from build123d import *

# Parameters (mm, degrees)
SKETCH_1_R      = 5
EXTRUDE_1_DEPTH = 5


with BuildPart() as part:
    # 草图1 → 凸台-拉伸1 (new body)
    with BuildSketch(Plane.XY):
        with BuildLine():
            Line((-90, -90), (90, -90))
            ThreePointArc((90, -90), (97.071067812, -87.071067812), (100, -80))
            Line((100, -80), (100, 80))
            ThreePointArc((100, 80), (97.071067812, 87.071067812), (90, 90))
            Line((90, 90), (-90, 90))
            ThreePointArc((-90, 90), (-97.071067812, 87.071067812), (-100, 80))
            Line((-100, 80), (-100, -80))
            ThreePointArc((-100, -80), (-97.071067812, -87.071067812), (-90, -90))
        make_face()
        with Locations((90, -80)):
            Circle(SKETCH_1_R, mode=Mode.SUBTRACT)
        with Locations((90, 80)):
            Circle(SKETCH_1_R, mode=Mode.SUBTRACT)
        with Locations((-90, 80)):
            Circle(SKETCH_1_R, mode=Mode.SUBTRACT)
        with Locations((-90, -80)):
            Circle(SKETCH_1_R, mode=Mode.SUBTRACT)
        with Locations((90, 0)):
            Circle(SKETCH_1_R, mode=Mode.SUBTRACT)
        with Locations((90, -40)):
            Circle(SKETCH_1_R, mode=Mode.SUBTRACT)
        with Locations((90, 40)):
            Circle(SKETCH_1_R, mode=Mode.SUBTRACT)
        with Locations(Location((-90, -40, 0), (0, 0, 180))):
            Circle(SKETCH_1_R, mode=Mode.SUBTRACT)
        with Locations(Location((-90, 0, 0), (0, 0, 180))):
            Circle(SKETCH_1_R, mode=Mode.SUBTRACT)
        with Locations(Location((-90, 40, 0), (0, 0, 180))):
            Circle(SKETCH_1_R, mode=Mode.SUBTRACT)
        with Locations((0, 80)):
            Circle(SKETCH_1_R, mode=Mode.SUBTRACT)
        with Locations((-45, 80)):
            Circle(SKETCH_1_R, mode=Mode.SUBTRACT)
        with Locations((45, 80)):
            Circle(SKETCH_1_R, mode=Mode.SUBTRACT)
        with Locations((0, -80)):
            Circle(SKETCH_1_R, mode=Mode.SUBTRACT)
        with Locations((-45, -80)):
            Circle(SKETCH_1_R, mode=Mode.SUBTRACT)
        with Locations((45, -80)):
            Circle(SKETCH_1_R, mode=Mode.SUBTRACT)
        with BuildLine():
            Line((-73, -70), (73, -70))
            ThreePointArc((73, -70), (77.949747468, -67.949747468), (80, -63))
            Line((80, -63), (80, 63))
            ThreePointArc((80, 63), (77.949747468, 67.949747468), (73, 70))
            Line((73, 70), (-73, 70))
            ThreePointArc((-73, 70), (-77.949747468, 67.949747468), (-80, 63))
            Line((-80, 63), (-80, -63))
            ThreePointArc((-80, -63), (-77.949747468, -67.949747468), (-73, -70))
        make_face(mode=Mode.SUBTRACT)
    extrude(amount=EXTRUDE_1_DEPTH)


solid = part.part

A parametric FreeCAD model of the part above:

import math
import FreeCAD as App
import Part
import Sketcher

V = App.Vector
Q = App.Units.Quantity

doc = App.newDocument("Part")
body = doc.addObject("PartDesign::Body", "Body")

# Sketch on XY plane
sketch1 = body.newObject("Sketcher::SketchObject", "Sketch")
sketch1.AttachmentSupport = (doc.getObject("XY_Plane"), [""])
sketch1.MapMode = "FlatFace"
sketch1.addGeometry([
    Part.LineSegment(V(-90, -90, 0), V(90, -90, 0)),  # 0
    Part.ArcOfCircle(Part.Circle(V(90, -80, 0), V(0, 0, 1), 10), math.radians(-90), math.radians(0)),  # 1
    Part.LineSegment(V(100, -80, 0), V(100, 80, 0)),  # 2
    Part.ArcOfCircle(Part.Circle(V(90, 80, 0), V(0, 0, 1), 10), math.radians(0), math.radians(90)),  # 3
    Part.LineSegment(V(90, 90, 0), V(-90, 90, 0)),  # 4
    Part.ArcOfCircle(Part.Circle(V(-90, 80, 0), V(0, 0, 1), 10), math.radians(90), math.radians(180)),  # 5
    Part.LineSegment(V(-100, 80, 0), V(-100, -80, 0)),  # 6
    Part.ArcOfCircle(Part.Circle(V(-90, -80, 0), V(0, 0, 1), 10), math.radians(180), math.radians(270)),  # 7
    Part.Circle(V(-90, -80, 0), V(0, 0, 1), 5),  # 8
    Part.Circle(V(-45, -80, 0), V(0, 0, 1), 5),  # 9
    Part.Circle(V(-90, -40, 0), V(0, 0, 1), 5),  # 10
    Part.Circle(V(0, -80, 0), V(0, 0, 1), 5),  # 11
    Part.Circle(V(45, -80, 0), V(0, 0, 1), 5),  # 12
    Part.Circle(V(90, -80, 0), V(0, 0, 1), 5),  # 13
    Part.Circle(V(90, -40, 0), V(0, 0, 1), 5),  # 14
    Part.Circle(V(-90, 0, 0), V(0, 0, 1), 5),  # 15
    Part.Circle(V(-90, 40, 0), V(0, 0, 1), 5),  # 16
    Part.Circle(V(-90, 80, 0), V(0, 0, 1), 5),  # 17
    Part.Circle(V(-45, 80, 0), V(0, 0, 1), 5),  # 18
    Part.LineSegment(V(73, -70, 0), V(-73, -70, 0)),  # 19
    Part.ArcOfCircle(Part.Circle(V(-73, -63, 0), V(0, 0, 1), 7), math.radians(-180), math.radians(-90)),  # 20
    Part.LineSegment(V(-80, -63, 0), V(-80, 63, 0)),  # 21
    Part.ArcOfCircle(Part.Circle(V(-73, 63, 0), V(0, 0, 1), 7), math.radians(90), math.radians(180)),  # 22
    Part.LineSegment(V(-73, 70, 0), V(73, 70, 0)),  # 23
    Part.ArcOfCircle(Part.Circle(V(73, 63, 0), V(0, 0, 1), 7), math.radians(0), math.radians(90)),  # 24
    Part.LineSegment(V(80, 63, 0), V(80, -63, 0)),  # 25
    Part.ArcOfCircle(Part.Circle(V(73, -63, 0), V(0, 0, 1), 7), math.radians(-90), math.radians(0)),  # 26
    Part.Circle(V(90, 0, 0), V(0, 0, 1), 5),  # 27
    Part.Circle(V(90, 40, 0), V(0, 0, 1), 5),  # 28
    Part.Circle(V(0, 80, 0), V(0, 0, 1), 5),  # 29
    Part.Circle(V(45, 80, 0), V(0, 0, 1), 5),  # 30
    Part.Circle(V(90, 80, 0), V(0, 0, 1), 5),  # 31
], False)
sketch1.addConstraint([
    Sketcher.Constraint("Tangent", 0, 2, 1, 1),
    Sketcher.Constraint("Tangent", 1, 2, 2, 1),
    Sketcher.Constraint("Tangent", 2, 2, 3, 1),
    Sketcher.Constraint("Tangent", 3, 2, 4, 1),
    Sketcher.Constraint("Tangent", 4, 2, 5, 1),
    Sketcher.Constraint("Tangent", 5, 2, 6, 1),
    Sketcher.Constraint("Tangent", 6, 2, 7, 1),
    Sketcher.Constraint("Tangent", 7, 2, 0, 1),
    Sketcher.Constraint("Tangent", 19, 2, 20, 2),
    Sketcher.Constraint("Tangent", 20, 1, 21, 1),
    Sketcher.Constraint("Tangent", 21, 2, 22, 2),
    Sketcher.Constraint("Tangent", 22, 1, 23, 1),
    Sketcher.Constraint("Tangent", 23, 2, 24, 2),
    Sketcher.Constraint("Tangent", 24, 1, 25, 1),
    Sketcher.Constraint("Tangent", 25, 2, 26, 2),
    Sketcher.Constraint("Tangent", 26, 1, 19, 1),
    Sketcher.Constraint("Horizontal", 0),
    Sketcher.Constraint("Vertical", 2),
    Sketcher.Constraint("Horizontal", 4),
    Sketcher.Constraint("Vertical", 6),
    Sketcher.Constraint("Horizontal", 19),
    Sketcher.Constraint("Vertical", 21),
    Sketcher.Constraint("Horizontal", 23),
    Sketcher.Constraint("Vertical", 25),
    Sketcher.Constraint("Coincident", 8, 3, 7, 3),
    Sketcher.Constraint("Coincident", 13, 3, 1, 3),
    Sketcher.Constraint("Coincident", 17, 3, 5, 3),
    Sketcher.Constraint("Coincident", 31, 3, 3, 3),
    Sketcher.Constraint("Equal", 1, 3),
    Sketcher.Constraint("Equal", 3, 5),
    Sketcher.Constraint("Equal", 5, 7),
    Sketcher.Constraint("Equal", 8, 9),
    Sketcher.Constraint("Equal", 9, 10),
    Sketcher.Constraint("Equal", 10, 11),
    Sketcher.Constraint("Equal", 11, 12),
    Sketcher.Constraint("Equal", 12, 13),
    Sketcher.Constraint("Equal", 13, 14),
    Sketcher.Constraint("Equal", 14, 15),
    Sketcher.Constraint("Equal", 15, 16),
    Sketcher.Constraint("Equal", 16, 17),
    Sketcher.Constraint("Equal", 17, 18),
    Sketcher.Constraint("Equal", 20, 22),
    Sketcher.Constraint("Equal", 22, 24),
    Sketcher.Constraint("Equal", 24, 26),
    Sketcher.Constraint("Equal", 18, 27),
    Sketcher.Constraint("Equal", 27, 28),
    Sketcher.Constraint("Equal", 28, 29),
    Sketcher.Constraint("Equal", 29, 30),
    Sketcher.Constraint("Equal", 30, 31),
    Sketcher.Constraint("Symmetric", 1, 3, 5, 3, -1, 1),
    Sketcher.Constraint("Symmetric", 14, 3, 16, 3, -1, 1),
    Sketcher.Constraint("Symmetric", 12, 3, 18, 3, -1, 1),
    Sketcher.Constraint("Symmetric", 20, 3, 24, 3, -1, 1),
    Sketcher.Constraint("Symmetric", 15, 3, 27, 3, -1, 1),
    Sketcher.Constraint("Symmetric", 10, 3, 28, 3, -1, 1),
    Sketcher.Constraint("Symmetric", 11, 3, 29, 3, -1, 1),
    Sketcher.Constraint("Symmetric", 9, 3, 30, 3, -1, 1),
    Sketcher.Constraint("Symmetric", 9, 3, 12, 3, -2),
    Sketcher.Constraint("Symmetric", 10, 3, 14, 3, -2),
    Sketcher.Constraint("PointOnObject", 11, 3, -2),
    Sketcher.Constraint("PointOnObject", 15, 3, -1),
    Sketcher.Constraint("Horizontal", 8, 3, 9, 3),
    Sketcher.Constraint("Horizontal", 9, 3, 11, 3),
    Sketcher.Constraint("Vertical", 8, 3, 10, 3),
    Sketcher.Constraint("Vertical", 10, 3, 15, 3),
    Sketcher.Constraint("Diameter", 8, Q("10 mm")),
    Sketcher.Constraint("Radius", 1, Q("10 mm")),
    Sketcher.Constraint("Radius", 20, Q("7 mm")),
    Sketcher.Constraint("DistanceX", 0, 1, 0, 2, Q("180 mm")),
    Sketcher.Constraint("DistanceX", 19, 2, 19, 1, Q("146 mm")),
    Sketcher.Constraint("DistanceY", 2, 1, 2, 2, Q("160 mm")),
    Sketcher.Constraint("DistanceY", 21, 1, 21, 2, Q("126 mm")),
    Sketcher.Constraint("DistanceX", 9, 3, -1, 1, Q("45 mm")),
    Sketcher.Constraint("DistanceY", 10, 3, -1, 1, Q("40 mm")),
])
pad1 = body.newObject("PartDesign::Pad", "Pad")
pad1.Profile = sketch1
pad1.Length = 5

doc.recompute()
